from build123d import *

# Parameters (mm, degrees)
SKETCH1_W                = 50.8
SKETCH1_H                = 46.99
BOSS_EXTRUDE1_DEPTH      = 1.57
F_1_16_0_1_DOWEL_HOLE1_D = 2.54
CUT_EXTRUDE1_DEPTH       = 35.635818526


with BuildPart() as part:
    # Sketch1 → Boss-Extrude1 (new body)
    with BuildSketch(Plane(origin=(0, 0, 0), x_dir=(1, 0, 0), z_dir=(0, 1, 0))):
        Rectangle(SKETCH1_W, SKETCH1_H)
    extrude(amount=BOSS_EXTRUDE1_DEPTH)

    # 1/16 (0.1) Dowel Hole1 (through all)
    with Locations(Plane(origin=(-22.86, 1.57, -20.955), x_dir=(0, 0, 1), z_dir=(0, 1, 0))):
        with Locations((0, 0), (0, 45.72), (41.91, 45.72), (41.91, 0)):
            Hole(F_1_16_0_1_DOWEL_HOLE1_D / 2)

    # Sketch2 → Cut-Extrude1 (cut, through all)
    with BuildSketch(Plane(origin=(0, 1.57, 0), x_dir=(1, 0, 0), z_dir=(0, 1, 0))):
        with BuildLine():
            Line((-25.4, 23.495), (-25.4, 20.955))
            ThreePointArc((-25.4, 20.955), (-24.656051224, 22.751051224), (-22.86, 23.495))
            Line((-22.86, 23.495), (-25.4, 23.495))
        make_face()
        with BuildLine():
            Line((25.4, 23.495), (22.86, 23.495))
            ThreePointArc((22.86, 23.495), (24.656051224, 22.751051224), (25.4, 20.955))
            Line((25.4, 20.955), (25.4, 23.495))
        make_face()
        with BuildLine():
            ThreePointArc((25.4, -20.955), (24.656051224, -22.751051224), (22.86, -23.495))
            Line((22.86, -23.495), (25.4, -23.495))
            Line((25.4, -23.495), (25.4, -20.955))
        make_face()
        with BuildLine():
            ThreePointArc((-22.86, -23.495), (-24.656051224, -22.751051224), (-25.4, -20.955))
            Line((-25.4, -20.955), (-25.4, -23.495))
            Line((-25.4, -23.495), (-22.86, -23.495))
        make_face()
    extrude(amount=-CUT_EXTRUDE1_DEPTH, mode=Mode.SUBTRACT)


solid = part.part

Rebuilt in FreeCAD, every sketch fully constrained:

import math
import FreeCAD as App
import Part
import Sketcher
from FreeCAD import Vector
Q = App.Units.Quantity


def add_polygon(sketch, points):
    """Adds a closed chain of lines whose ends are joined by coincident constraints."""
    first, n = sketch.GeometryCount, len(points)
    for a, b in zip(points, points[1:] + points[:1]):
        sketch.addGeometry(Part.LineSegment(App.Vector(*a, 0), App.Vector(*b, 0)), False)
    for i in range(n):
        sketch.addConstraint(Sketcher.Constraint("Coincident", first + i, 2, first + (i + 1) % n, 1))

doc = App.newDocument("Part")
body = doc.addObject("PartDesign::Body", "Body")

sketch1 = body.newObject("Sketcher::SketchObject", "Sketch")
sketch1.AttachmentSupport = (doc.getObject("XZ_Plane"), [""])
sketch1.MapMode = "FlatFace"
add_polygon(sketch1, [(-25.4, -23.495), (-25.4, 23.495), (25.4, 23.495), (25.4, -23.495)])
sketch1.addConstraint(Sketcher.Constraint("Vertical", 0))
sketch1.addConstraint(Sketcher.Constraint("Horizontal", 1))
sketch1.addConstraint(Sketcher.Constraint("Vertical", 2))
sketch1.addConstraint(Sketcher.Constraint("Horizontal", 3))
sketch1.addConstraint(Sketcher.Constraint("Symmetric", 0, 2, 2, 2, -1, 1))
sketch1.addConstraint(Sketcher.Constraint("DistanceX", 1, 1, 1, 2, Q("2 in")))
sketch1.addConstraint(Sketcher.Constraint("DistanceY", 0, 1, 0, 2, Q("1.85 in")))
pad1 = body.newObject("PartDesign::Pad", "Pad")
pad1.Profile = sketch1
pad1.Length = 1.57
pad1.Reversed = True

sketch2 = body.newObject("Sketcher::SketchObject", "Sketch001")
sketch2.AttachmentSupport = (doc.getObject("XZ_Plane"), [""])
sketch2.MapMode = "FlatFace"
sketch2.AttachmentOffset = App.Placement(Vector(0, 0, -1.57), App.Rotation())
sketch2.addGeometry(Part.Circle(Vector(-22.86, -20.955, 0), Vector(0, 0, 1), 1.27), False)
sketch2.addGeometry(Part.Circle(Vector(22.86, -20.955, 0), Vector(0, 0, 1), 1.27), False)
sketch2.addGeometry(Part.Circle(Vector(22.86, 20.955, 0), Vector(0, 0, 1), 1.27), False)
sketch2.addGeometry(Part.Circle(Vector(-22.86, 20.955, 0), Vector(0, 0, 1), 1.27), False)
sketch2.addConstraint(Sketcher.Constraint("Equal", 0, 1))
sketch2.addConstraint(Sketcher.Constraint("Equal", 1, 2))
sketch2.addConstraint(Sketcher.Constraint("Equal", 2, 3))
sketch2.addConstraint(Sketcher.Constraint("Symmetric", 0, 3, 2, 3, -1, 1))
sketch2.addConstraint(Sketcher.Constraint("Symmetric", 1, 3, 3, 3, -1, 1))
sketch2.addConstraint(Sketcher.Constraint("Symmetric", 0, 3, 1, 3, -2))
sketch2.addConstraint(Sketcher.Constraint("Diameter", 0, Q("0.1 in")))
sketch2.addConstraint(Sketcher.Constraint("DistanceX", 0, 3, -1, 1, Q("0.9 in")))
sketch2.addConstraint(Sketcher.Constraint("DistanceY", 1, 3, 2, 3, Q("1.65 in")))
doc.recompute()
hole = body.newObject("PartDesign::Hole", "Hole")
hole.Profile = sketch2
hole.ThreadType = "None"
hole.Diameter = Q("0.1 in")
hole.DepthType = "ThroughAll"
hole.Reversed = True

sketch3 = body.newObject("Sketcher::SketchObject", "Sketch002")
sketch3.AttachmentSupport = (doc.getObject("XZ_Plane"), [""])
sketch3.MapMode = "FlatFace"
sketch3.AttachmentOffset = App.Placement(Vector(0, 0, -1.57), App.Rotation())
sketch3.addGeometry(Part.LineSegment(Vector(-25.4, -23.495, 0), Vector(-25.4, -20.955, 0)), False)
sketch3.addGeometry(Part.ArcOfCircle(Part.Circle(Vector(-22.86, -20.955, 0), Vector(0, 0, 1), 2.54), math.radians(-180), math.radians(-90)), False)
sketch3.addGeometry(Part.LineSegment(Vector(-22.86, -23.495, 0), Vector(-25.4, -23.495, 0)), False)
sketch3.addGeometry(Part.LineSegment(Vector(25.4, -23.495, 0), Vector(22.86, -23.495, 0)), False)
sketch3.addGeometry(Part.ArcOfCircle(Part.Circle(Vector(22.86, -20.955, 0), Vector(0, 0, 1), 2.54), math.radians(-90), math.radians(0)), False)
sketch3.addGeometry(Part.LineSegment(Vector(25.4, -20.955, 0), Vector(25.4, -23.495, 0)), False)
sketch3.addGeometry(Part.ArcOfCircle(Part.Circle(Vector(22.86, 20.955, 0), Vector(0, 0, 1), 2.54), math.radians(0), math.radians(90)), False)
sketch3.addGeometry(Part.LineSegment(Vector(22.86, 23.495, 0), Vector(25.4, 23.495, 0)), False)
sketch3.addGeometry(Part.LineSegment(Vector(25.4, 23.495, 0), Vector(25.4, 20.955, 0)), False)
sketch3.addGeometry(Part.ArcOfCircle(Part.Circle(Vector(-22.86, 20.955, 0), Vector(0, 0, 1), 2.54), math.radians(90), math.radians(180)), False)
sketch3.addGeometry(Part.LineSegment(Vector(-25.4, 20.955, 0), Vector(-25.4, 23.495, 0)), False)
sketch3.addGeometry(Part.LineSegment(Vector(-25.4, 23.495, 0), Vector(-22.86, 23.495, 0)), False)
sketch3.addConstraint(Sketcher.Constraint("Tangent", 0, 2, 1, 1))
sketch3.addConstraint(Sketcher.Constraint("Tangent", 1, 2, 2, 1))
sketch3.addConstraint(Sketcher.Constraint("Coincident", 2, 2, 0, 1))
sketch3.addConstraint(Sketcher.Constraint("Tangent", 3, 2, 4, 1))
sketch3.addConstraint(Sketcher.Constraint("Tangent", 4, 2, 5, 1))
sketch3.addConstraint(Sketcher.Constraint("Coincident", 5, 2, 3, 1))
sketch3.addConstraint(Sketcher.Constraint("Tangent", 6, 2, 7, 1))
sketch3.addConstraint(Sketcher.Constraint("Coincident", 7, 2, 8, 1))
sketch3.addConstraint(Sketcher.Constraint("Tangent", 8, 2, 6, 1))
sketch3.addConstraint(Sketcher.Constraint("Tangent", 9, 2, 10, 1))
sketch3.addConstraint(Sketcher.Constraint("Coincident", 10, 2, 11, 1))
sketch3.addConstraint(Sketcher.Constraint("Tangent", 11, 2, 9, 1))
sketch3.addConstraint(Sketcher.Constraint("Vertical", 0))
sketch3.addConstraint(Sketcher.Constraint("Horizontal", 2))
sketch3.addConstraint(Sketcher.Constraint("Horizontal", 3))
sketch3.addConstraint(Sketcher.Constraint("Vertical", 5))
sketch3.addConstraint(Sketcher.Constraint("Horizontal", 7))
sketch3.addConstraint(Sketcher.Constraint("Vertical", 8))
sketch3.addConstraint(Sketcher.Constraint("Vertical", 10))
sketch3.addConstraint(Sketcher.Constraint("Horizontal", 11))
sketch3.addConstraint(Sketcher.Constraint("Equal", 1, 4))
sketch3.addConstraint(Sketcher.Constraint("Equal", 4, 6))
sketch3.addConstraint(Sketcher.Constraint("Equal", 6, 9))
sketch3.addConstraint(Sketcher.Constraint("Symmetric", 1, 3, 6, 3, -1, 1))
sketch3.addConstraint(Sketcher.Constraint("Symmetric", 4, 3, 9, 3, -1, 1))
sketch3.addConstraint(Sketcher.Constraint("Symmetric", 1, 3, 4, 3, -2))
sketch3.addConstraint(Sketcher.Constraint("Radius", 1, Q("0.1 in")))
sketch3.addConstraint(Sketcher.Constraint("DistanceX", 0, 2, -1, 1, Q("1 in")))
sketch3.addConstraint(Sketcher.Constraint("DistanceY", 4, 3, 6, 3, Q("1.65 in")))
pocket1 = body.newObject("PartDesign::Pocket", "Pocket")
pocket1.Profile = sketch3
pocket1.Type = "ThroughAll"
pocket1.Reversed = True

doc.recompute()
